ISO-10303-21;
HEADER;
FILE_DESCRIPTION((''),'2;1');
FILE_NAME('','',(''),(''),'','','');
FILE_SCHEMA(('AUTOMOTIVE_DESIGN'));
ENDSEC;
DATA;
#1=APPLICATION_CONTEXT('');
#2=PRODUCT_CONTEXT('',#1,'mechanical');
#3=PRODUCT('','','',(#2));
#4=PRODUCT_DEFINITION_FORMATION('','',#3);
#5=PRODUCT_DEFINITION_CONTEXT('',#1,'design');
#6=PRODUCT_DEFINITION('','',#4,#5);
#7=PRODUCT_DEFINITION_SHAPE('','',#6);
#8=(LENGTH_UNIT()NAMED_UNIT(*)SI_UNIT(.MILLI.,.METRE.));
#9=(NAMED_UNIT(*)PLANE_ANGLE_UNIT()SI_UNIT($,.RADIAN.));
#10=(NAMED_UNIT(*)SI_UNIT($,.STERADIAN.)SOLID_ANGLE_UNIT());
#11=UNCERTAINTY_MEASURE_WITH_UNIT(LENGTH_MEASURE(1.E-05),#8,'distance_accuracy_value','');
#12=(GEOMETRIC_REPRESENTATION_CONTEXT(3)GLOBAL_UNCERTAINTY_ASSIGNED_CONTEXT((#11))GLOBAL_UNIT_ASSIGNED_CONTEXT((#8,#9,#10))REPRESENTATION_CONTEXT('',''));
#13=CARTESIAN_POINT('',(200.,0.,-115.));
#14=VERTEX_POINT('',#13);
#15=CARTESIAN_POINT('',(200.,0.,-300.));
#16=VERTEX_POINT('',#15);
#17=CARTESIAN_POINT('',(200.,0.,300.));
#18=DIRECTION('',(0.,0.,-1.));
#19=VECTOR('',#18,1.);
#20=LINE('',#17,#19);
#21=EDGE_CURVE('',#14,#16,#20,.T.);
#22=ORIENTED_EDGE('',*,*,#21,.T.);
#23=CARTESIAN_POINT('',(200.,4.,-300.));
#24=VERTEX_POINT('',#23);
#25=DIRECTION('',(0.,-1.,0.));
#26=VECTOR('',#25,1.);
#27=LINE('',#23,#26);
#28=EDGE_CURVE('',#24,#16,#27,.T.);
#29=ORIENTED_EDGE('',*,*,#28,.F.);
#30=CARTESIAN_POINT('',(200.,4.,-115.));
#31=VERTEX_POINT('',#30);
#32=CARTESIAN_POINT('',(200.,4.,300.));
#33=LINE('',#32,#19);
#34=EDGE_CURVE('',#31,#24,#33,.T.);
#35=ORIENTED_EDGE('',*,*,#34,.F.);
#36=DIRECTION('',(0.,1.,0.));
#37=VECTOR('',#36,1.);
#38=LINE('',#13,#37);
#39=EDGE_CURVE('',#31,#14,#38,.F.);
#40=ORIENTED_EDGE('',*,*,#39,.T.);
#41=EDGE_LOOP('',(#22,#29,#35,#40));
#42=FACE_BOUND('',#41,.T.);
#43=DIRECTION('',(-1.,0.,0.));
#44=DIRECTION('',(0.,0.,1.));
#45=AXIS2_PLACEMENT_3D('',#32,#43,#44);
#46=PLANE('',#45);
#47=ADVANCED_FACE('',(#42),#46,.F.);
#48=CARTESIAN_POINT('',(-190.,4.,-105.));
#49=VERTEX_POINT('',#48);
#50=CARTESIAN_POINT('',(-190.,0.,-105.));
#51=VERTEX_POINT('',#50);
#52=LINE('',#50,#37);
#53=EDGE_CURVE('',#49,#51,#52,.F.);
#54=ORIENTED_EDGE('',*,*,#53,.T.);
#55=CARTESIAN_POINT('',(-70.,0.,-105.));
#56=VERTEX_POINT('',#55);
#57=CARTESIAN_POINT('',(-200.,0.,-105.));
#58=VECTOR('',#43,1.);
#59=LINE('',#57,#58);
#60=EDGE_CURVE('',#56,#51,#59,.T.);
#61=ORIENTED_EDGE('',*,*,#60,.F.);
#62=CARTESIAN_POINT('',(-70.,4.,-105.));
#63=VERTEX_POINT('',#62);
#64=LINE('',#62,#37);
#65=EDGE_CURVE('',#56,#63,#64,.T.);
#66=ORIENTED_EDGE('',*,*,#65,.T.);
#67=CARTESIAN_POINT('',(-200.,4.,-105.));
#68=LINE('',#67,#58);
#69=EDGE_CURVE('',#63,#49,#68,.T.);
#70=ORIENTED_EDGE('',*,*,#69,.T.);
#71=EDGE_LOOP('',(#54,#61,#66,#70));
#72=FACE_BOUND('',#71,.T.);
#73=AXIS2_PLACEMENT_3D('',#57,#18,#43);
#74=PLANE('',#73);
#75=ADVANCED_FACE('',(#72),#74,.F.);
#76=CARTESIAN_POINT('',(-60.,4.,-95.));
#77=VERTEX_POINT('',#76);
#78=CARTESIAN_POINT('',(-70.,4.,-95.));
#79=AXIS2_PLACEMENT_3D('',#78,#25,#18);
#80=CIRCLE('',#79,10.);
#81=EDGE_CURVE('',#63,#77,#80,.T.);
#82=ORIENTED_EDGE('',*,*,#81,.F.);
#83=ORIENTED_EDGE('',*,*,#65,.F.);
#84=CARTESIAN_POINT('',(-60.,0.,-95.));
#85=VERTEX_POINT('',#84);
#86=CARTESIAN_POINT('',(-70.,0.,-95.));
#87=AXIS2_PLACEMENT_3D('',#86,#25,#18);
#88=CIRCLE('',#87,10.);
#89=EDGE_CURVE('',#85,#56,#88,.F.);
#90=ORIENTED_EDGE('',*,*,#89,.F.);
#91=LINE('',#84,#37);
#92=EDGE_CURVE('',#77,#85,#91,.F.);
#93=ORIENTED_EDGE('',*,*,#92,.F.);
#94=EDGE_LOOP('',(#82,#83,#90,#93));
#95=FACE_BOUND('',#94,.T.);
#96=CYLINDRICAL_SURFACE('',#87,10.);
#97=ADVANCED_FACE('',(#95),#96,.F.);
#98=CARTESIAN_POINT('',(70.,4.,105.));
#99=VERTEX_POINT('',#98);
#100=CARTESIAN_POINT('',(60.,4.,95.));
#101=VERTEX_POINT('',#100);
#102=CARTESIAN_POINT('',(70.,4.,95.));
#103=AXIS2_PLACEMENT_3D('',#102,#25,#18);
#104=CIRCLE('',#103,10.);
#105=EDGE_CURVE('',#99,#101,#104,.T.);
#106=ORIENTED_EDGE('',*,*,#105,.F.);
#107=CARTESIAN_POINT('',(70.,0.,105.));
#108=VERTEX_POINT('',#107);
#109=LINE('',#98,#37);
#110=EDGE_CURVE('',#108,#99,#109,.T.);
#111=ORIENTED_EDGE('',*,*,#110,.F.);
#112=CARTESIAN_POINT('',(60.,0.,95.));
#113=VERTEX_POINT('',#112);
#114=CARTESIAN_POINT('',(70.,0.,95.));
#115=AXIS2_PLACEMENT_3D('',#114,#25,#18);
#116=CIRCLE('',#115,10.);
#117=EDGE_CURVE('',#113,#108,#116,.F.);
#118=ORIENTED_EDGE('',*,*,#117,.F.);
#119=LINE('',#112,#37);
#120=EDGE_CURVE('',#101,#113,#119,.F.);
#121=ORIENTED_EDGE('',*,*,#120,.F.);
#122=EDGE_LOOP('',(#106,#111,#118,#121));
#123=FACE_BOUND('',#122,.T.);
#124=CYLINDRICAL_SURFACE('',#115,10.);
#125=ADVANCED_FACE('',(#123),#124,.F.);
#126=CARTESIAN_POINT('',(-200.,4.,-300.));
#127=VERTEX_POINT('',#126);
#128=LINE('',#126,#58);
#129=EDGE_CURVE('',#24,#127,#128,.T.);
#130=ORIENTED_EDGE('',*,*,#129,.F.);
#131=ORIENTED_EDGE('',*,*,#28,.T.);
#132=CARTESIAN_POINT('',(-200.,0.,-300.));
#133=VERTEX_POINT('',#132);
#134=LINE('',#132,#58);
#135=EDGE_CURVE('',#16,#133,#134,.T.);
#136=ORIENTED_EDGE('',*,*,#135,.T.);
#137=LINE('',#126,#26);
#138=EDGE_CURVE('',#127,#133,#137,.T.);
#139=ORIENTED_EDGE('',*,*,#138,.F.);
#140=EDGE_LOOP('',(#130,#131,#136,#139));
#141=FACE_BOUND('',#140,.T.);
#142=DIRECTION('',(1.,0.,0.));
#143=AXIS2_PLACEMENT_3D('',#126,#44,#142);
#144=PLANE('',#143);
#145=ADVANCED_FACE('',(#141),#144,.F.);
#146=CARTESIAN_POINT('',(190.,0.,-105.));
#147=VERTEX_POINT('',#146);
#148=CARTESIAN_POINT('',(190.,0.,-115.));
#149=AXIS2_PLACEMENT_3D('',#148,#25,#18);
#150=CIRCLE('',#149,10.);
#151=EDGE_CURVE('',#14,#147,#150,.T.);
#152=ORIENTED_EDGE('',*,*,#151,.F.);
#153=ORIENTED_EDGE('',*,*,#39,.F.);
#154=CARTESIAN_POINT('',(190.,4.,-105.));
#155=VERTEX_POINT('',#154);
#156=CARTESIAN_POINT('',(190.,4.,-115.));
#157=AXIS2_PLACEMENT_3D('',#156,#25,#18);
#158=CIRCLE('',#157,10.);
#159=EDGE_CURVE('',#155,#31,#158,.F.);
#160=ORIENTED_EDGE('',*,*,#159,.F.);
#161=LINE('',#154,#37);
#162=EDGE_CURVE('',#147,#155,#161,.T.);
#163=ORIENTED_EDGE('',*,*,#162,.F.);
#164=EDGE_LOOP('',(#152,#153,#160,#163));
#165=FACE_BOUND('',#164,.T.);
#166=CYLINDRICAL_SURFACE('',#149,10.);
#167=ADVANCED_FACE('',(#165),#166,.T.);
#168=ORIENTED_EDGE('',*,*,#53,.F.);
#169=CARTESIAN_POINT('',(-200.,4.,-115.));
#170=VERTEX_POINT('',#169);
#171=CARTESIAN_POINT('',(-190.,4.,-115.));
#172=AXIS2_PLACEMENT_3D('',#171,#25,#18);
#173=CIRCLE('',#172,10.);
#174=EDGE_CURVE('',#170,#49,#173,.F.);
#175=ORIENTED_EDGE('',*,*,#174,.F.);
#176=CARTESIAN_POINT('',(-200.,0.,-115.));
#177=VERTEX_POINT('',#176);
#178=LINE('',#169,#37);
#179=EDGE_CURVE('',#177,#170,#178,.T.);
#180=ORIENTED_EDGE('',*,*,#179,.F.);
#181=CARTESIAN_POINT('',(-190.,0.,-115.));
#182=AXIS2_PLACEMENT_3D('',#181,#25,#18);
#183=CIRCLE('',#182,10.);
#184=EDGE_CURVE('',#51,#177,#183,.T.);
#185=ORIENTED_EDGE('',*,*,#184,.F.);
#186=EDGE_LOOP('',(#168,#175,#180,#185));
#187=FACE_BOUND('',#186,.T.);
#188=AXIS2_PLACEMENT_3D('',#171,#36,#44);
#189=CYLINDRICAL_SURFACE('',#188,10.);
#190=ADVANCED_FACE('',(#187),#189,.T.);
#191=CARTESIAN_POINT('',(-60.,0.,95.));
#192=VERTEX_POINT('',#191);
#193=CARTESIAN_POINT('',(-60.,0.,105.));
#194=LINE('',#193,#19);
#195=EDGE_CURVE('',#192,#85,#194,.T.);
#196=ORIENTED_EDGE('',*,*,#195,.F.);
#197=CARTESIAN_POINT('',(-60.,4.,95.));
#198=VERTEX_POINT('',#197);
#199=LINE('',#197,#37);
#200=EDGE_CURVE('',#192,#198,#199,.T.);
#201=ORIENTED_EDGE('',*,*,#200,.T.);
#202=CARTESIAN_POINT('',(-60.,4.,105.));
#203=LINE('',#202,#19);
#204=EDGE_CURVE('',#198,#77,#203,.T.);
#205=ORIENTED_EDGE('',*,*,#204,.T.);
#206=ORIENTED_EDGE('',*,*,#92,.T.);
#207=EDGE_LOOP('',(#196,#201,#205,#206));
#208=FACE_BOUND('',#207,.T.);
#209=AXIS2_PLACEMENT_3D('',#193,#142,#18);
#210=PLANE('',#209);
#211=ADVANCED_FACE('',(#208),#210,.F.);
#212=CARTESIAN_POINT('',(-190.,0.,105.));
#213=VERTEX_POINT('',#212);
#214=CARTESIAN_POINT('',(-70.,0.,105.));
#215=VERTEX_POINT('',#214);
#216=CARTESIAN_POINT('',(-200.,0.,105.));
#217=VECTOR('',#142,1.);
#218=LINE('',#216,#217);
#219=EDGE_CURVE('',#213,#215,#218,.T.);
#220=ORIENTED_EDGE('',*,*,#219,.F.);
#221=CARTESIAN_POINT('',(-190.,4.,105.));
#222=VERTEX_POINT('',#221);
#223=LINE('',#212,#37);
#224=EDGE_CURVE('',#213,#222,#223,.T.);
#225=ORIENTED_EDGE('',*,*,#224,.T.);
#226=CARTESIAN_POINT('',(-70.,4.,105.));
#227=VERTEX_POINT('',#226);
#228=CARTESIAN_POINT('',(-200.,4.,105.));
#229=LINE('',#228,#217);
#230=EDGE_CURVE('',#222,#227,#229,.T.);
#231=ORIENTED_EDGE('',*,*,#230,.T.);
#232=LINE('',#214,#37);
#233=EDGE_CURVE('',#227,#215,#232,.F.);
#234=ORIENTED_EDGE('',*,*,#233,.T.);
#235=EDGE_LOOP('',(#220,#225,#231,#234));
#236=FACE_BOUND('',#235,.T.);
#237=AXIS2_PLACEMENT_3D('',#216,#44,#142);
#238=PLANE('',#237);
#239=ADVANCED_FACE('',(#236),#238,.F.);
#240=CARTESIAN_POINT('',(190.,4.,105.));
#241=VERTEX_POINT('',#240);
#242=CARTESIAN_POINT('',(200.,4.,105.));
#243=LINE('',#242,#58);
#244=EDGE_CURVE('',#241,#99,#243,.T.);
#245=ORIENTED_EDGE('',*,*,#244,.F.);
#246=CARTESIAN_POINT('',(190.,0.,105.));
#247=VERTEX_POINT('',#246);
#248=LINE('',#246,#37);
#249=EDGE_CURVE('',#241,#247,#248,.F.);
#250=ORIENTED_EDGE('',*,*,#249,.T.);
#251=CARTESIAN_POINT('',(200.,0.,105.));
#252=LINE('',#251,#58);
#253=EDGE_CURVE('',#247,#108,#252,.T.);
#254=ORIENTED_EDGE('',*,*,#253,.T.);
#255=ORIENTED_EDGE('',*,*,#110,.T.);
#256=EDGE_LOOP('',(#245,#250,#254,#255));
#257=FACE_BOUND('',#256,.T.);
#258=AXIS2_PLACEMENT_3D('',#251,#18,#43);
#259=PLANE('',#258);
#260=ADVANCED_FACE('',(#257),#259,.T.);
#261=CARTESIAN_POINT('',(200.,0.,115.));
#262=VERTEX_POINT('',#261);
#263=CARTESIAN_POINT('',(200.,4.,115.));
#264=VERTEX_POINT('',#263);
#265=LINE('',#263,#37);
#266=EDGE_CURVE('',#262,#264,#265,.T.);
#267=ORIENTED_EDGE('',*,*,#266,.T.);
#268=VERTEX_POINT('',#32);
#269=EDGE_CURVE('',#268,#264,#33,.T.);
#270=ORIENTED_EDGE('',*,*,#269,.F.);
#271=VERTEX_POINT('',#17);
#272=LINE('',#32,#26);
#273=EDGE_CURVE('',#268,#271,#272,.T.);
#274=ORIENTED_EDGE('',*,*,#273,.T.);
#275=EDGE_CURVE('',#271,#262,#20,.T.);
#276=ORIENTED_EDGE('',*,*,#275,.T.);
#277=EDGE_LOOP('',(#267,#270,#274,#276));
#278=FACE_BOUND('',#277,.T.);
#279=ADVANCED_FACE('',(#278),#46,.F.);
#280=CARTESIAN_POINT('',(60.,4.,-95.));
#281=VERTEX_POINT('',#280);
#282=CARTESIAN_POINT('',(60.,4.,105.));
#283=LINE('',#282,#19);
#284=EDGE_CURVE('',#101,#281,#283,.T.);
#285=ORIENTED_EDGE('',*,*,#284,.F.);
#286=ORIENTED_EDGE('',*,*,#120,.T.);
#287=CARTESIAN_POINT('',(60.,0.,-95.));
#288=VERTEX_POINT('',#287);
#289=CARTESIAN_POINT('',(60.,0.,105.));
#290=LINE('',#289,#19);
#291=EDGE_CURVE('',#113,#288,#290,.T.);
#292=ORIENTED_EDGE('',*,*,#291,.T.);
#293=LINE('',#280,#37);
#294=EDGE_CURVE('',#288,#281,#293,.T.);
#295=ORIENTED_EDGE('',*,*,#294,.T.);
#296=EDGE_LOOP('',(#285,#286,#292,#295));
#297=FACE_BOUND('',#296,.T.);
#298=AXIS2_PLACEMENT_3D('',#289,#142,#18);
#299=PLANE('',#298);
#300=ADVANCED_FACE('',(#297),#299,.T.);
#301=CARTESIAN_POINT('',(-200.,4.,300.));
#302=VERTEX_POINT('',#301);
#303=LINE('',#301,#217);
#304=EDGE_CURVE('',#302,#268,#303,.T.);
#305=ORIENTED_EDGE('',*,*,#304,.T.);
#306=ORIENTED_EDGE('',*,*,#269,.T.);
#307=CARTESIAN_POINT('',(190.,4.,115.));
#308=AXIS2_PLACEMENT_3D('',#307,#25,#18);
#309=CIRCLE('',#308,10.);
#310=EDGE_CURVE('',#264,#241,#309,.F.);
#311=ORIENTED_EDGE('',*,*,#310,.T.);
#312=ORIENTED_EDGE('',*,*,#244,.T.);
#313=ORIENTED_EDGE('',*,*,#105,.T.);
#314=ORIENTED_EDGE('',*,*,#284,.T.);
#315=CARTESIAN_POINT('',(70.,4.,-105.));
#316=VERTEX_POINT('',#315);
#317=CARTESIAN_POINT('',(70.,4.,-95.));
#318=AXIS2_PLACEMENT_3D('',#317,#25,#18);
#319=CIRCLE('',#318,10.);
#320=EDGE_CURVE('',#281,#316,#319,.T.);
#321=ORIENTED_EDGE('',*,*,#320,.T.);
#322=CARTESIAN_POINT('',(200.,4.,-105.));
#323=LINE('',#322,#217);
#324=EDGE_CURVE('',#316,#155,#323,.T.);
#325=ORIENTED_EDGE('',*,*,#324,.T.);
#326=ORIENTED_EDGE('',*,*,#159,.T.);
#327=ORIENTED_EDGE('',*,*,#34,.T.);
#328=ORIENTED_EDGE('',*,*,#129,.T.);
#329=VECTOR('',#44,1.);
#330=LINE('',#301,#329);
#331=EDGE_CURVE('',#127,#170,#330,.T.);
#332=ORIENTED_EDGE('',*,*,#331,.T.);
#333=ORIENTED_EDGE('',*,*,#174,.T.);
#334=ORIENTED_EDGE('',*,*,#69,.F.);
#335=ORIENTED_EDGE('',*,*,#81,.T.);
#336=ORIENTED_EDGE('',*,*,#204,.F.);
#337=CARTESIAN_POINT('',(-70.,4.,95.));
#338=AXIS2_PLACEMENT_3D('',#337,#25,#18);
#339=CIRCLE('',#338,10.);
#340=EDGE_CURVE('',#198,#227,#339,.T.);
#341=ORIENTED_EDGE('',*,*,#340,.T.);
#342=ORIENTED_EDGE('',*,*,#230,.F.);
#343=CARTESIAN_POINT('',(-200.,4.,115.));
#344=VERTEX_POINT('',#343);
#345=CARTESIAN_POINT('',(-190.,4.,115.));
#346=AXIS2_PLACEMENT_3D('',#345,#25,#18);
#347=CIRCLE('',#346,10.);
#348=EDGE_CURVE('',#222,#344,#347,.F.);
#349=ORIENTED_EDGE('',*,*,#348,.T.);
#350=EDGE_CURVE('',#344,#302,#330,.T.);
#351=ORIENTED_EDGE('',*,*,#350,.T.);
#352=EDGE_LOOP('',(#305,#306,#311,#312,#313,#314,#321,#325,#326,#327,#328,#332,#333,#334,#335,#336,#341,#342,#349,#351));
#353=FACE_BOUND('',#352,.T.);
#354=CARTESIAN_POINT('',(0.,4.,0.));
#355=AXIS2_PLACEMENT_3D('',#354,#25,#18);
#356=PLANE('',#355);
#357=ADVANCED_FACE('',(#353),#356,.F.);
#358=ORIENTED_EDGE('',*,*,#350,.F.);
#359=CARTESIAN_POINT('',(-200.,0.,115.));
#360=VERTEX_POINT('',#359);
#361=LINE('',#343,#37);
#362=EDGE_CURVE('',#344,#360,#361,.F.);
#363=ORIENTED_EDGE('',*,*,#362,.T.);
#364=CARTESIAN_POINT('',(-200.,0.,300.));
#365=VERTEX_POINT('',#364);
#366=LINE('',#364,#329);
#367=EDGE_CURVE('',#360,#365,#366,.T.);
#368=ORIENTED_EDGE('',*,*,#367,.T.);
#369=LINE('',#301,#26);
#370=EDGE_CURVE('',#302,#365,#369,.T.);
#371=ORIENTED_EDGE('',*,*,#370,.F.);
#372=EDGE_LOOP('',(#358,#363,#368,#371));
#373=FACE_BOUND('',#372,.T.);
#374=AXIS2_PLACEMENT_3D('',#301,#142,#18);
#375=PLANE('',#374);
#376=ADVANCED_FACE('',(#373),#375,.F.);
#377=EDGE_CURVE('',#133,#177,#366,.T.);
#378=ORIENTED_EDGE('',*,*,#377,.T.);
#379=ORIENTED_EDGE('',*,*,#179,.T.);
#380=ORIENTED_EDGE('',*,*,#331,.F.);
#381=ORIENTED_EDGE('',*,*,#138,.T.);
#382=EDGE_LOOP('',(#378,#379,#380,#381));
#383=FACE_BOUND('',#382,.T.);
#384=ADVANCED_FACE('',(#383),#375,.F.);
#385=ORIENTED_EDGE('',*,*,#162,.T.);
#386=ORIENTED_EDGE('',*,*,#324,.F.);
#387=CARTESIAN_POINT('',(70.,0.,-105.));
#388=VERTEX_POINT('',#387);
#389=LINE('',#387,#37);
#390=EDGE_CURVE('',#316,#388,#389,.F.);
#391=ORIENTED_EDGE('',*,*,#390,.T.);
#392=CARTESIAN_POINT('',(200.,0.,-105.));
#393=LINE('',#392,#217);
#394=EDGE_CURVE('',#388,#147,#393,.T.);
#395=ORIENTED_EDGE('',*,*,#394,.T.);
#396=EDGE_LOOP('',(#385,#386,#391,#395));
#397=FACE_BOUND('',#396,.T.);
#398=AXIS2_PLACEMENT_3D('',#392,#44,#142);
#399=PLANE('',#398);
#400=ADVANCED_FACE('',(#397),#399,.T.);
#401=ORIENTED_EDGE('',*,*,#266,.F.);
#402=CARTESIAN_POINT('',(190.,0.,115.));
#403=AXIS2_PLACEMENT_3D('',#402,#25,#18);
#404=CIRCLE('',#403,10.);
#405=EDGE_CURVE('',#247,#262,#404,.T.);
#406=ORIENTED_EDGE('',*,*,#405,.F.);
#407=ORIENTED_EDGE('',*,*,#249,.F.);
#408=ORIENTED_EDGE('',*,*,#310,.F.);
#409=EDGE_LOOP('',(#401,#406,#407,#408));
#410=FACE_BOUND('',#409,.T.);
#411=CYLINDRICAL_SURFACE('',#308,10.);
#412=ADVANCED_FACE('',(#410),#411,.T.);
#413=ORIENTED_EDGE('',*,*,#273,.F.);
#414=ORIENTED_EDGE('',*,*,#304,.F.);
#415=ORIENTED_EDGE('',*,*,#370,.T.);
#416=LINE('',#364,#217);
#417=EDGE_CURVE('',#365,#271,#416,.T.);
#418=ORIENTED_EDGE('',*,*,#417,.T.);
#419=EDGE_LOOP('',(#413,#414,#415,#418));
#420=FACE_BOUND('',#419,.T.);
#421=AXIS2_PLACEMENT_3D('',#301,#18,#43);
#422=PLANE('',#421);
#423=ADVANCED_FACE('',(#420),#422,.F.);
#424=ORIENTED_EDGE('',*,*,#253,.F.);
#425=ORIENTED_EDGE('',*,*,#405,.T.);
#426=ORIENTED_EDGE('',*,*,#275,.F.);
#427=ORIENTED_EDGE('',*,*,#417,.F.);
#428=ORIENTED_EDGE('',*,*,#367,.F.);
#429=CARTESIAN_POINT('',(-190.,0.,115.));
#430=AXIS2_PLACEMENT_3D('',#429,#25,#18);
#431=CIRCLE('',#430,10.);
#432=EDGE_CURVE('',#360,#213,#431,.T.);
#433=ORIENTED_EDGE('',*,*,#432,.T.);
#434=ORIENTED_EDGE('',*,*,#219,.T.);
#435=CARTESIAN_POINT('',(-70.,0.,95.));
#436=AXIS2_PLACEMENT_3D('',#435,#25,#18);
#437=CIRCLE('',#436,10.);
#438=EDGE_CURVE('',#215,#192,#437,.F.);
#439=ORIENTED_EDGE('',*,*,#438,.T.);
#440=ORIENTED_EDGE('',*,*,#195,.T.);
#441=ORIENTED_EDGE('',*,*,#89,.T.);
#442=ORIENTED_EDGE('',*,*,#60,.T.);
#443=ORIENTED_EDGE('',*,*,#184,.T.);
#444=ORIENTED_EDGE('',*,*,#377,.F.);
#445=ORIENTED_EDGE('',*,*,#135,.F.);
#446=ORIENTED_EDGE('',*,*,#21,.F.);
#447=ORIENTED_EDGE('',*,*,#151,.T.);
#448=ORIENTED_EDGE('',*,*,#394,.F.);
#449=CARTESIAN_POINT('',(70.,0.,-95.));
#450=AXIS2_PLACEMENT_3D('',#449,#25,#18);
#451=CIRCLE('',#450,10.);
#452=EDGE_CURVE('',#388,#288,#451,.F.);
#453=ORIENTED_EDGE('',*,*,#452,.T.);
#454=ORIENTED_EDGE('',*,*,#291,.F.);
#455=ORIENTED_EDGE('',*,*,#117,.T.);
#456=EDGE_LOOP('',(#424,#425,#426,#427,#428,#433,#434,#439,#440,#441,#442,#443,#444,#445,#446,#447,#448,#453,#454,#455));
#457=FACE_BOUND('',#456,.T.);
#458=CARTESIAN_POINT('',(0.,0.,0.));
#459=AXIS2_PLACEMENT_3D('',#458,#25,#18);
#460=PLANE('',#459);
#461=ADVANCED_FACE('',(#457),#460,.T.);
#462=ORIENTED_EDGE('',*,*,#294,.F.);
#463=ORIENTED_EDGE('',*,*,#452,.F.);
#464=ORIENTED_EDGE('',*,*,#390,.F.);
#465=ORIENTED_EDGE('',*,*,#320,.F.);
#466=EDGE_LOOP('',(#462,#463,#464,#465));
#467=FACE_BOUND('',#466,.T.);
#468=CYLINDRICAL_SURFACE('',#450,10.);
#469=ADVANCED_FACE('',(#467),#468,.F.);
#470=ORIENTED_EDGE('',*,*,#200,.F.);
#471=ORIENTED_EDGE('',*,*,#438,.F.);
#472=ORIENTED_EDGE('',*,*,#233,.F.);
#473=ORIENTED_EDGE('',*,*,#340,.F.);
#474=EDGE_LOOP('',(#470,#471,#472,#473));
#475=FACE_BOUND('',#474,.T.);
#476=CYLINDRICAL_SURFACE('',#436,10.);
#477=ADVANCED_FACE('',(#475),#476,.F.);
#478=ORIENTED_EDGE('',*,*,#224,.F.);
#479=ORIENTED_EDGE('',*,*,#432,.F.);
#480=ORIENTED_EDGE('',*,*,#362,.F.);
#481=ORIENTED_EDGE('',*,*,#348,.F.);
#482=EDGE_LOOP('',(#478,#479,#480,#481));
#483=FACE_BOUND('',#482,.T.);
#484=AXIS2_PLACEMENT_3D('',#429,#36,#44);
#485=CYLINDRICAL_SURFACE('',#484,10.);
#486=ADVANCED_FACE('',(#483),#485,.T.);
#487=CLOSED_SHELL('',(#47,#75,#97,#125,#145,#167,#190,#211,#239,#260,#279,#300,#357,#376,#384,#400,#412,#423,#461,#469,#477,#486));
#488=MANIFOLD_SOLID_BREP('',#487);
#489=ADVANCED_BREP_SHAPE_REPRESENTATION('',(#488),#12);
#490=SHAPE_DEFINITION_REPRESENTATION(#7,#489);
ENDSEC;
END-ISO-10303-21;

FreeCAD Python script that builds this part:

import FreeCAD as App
import Part
import Sketcher
from FreeCAD import Vector
Q = App.Units.Quantity


def edges_at(feature, points):
    """Names of the edges that pass closest to the given points."""
    edges = feature.Shape.Edges
    near = lambda p: min(range(len(edges)), key=lambda i: edges[i].distToShape(Part.Vertex(*p))[0])
    return sorted({f"Edge{near(p) + 1}" for p in points})


def add_polygon(sketch, points):
    """Adds a closed chain of lines whose ends are joined by coincident constraints."""
    first, n = sketch.GeometryCount, len(points)
    for a, b in zip(points, points[1:] + points[:1]):
        sketch.addGeometry(Part.LineSegment(App.Vector(*a, 0), App.Vector(*b, 0)), False)
    for i in range(n):
        sketch.addConstraint(Sketcher.Constraint("Coincident", first + i, 2, first + (i + 1) % n, 1))

doc = App.newDocument("Part")
body = doc.addObject("PartDesign::Body", "Body")

# Sketch on XZ plane
sketch1 = body.newObject("Sketcher::SketchObject", "Sketch")
sketch1.AttachmentSupport = (doc.getObject("XZ_Plane"), [""])
sketch1.MapMode = "FlatFace"
add_polygon(sketch1, [(-200, -300), (-200, 300), (200, 300), (200, -300)])  # lines 0-3
sketch1.addConstraint(Sketcher.Constraint("Vertical", 0))
sketch1.addConstraint(Sketcher.Constraint("Horizontal", 1))
sketch1.addConstraint(Sketcher.Constraint("Vertical", 2))
sketch1.addConstraint(Sketcher.Constraint("Horizontal", 3))
sketch1.addConstraint(Sketcher.Constraint("Symmetric", 0, 2, 2, 2, -1, 1))
sketch1.addConstraint(Sketcher.Constraint("DistanceX", 1, 1, 1, 2, Q("400 mm")))
sketch1.addConstraint(Sketcher.Constraint("DistanceY", 0, 1, 0, 2, Q("600 mm")))
pad1 = body.newObject("PartDesign::Pad", "Pad")
pad1.Profile = sketch1
pad1.Length = 4
pad1.Reversed = True

# Sketch on XZ plane
sketch2 = body.newObject("Sketcher::SketchObject", "Sketch001")
sketch2.AttachmentSupport = (doc.getObject("XZ_Plane"), [""])
sketch2.MapMode = "FlatFace"
sketch2.AttachmentOffset = App.Placement(Vector(0, 0, -4), App.Rotation())
add_polygon(sketch2, [(-200, -105), (-200, 105), (-60, 105), (-60, -105)])  # lines 0-3
sketch2.addConstraint(Sketcher.Constraint("Vertical", 0))
sketch2.addConstraint(Sketcher.Constraint("Horizontal", 1))
sketch2.addConstraint(Sketcher.Constraint("Vertical", 2))
sketch2.addConstraint(Sketcher.Constraint("Horizontal", 3))
sketch2.addConstraint(Sketcher.Constraint("DistanceX", 1, 1, 1, 2, Q("140 mm")))
sketch2.addConstraint(Sketcher.Constraint("DistanceY", 0, 1, 0, 2, Q("210 mm")))
sketch2.addConstraint(Sketcher.Constraint("DistanceX", 0, 2, -1, 1, Q("200 mm")))
sketch2.addConstraint(Sketcher.Constraint("DistanceY", -1, 1, 0, 2, Q("105 mm")))
pocket1 = body.newObject("PartDesign::Pocket", "Pocket")
pocket1.Profile = sketch2
pocket1.Type = "ThroughAll"
pocket1.Reversed = True
doc.recompute()

mirrored = body.newObject("PartDesign::Mirrored", "Mirrored")
mirrored.Originals = [pocket1]
mirrored.MirrorPlane = (doc.getObject("YZ_Plane"), [""])
body.Tip = mirrored
doc.recompute()

fillet = body.newObject("PartDesign::Fillet", "Fillet")
fillet.Base = (mirrored, edges_at(mirrored, [
    (-60, 2, -105),
    (-60, 2, 105),
    (-200, 2, 105),
    (-200, 2, -105),
    (60, 2, 105),
    (60, 2, -105),
    (200, 2, -105),
    (200, 2, 105),
]))
fillet.Radius = 10

doc.recompute()
